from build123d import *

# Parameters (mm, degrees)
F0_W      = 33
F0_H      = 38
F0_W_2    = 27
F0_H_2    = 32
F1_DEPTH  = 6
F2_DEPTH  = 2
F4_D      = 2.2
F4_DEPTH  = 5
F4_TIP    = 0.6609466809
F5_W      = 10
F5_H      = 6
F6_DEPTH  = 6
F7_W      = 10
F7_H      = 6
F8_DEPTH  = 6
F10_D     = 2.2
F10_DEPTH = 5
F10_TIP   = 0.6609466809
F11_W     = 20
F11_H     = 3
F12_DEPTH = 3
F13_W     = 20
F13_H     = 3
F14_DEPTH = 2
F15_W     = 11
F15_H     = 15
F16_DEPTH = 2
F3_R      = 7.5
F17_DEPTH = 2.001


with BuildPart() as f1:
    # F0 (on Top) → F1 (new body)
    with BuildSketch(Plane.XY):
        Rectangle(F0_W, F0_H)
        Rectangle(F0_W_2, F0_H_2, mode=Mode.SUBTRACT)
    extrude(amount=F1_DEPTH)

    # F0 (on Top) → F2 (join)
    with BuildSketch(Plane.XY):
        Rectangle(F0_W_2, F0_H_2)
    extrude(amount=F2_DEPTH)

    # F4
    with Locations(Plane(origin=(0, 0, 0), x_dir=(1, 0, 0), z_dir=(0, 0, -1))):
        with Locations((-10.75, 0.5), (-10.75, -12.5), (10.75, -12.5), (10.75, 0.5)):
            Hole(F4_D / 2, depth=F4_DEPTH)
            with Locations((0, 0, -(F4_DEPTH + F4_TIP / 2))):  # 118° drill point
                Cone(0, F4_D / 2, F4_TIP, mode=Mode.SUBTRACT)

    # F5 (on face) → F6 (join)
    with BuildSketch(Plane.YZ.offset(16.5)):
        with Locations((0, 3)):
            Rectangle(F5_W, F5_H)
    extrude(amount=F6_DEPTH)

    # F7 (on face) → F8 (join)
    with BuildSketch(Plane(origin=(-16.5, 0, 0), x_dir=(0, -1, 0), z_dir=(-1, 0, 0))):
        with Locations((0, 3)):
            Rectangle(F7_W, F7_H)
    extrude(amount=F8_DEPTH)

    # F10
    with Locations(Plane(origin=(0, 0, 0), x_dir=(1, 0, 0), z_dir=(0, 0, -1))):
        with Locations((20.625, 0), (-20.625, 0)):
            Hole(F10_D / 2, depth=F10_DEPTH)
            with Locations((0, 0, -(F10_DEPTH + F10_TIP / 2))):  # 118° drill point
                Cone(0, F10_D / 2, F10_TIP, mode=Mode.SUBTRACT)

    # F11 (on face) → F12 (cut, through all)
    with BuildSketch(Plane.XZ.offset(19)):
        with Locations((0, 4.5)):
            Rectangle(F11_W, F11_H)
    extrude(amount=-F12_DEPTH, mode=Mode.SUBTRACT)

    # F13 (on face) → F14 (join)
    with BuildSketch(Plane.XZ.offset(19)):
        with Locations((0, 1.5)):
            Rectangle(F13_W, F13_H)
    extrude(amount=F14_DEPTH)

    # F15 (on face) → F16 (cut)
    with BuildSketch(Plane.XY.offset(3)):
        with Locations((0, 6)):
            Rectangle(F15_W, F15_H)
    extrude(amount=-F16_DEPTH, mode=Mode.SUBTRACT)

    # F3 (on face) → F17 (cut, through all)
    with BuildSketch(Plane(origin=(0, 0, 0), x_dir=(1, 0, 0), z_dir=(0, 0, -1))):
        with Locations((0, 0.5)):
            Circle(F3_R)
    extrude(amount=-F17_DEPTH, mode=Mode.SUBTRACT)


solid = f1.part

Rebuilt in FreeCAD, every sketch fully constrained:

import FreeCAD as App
import Part
import Sketcher
Q = App.Units.Quantity


def add_polygon(sketch, points):
    """Adds a closed chain of lines whose ends are joined by coincident constraints."""
    first, n = sketch.GeometryCount, len(points)
    for a, b in zip(points, points[1:] + points[:1]):
        sketch.addGeometry(Part.LineSegment(App.Vector(*a, 0), App.Vector(*b, 0)), False)
    for i in range(n):
        sketch.addConstraint(Sketcher.Constraint("Coincident", first + i, 2, first + (i + 1) % n, 1))

doc = App.newDocument("Part")
body = doc.addObject("PartDesign::Body", "Body")

# Sketch on XY plane
sketch1 = body.newObject("Sketcher::SketchObject", "Sketch")
sketch1.AttachmentSupport = (doc.getObject("XY_Plane"), [""])
sketch1.MapMode = "FlatFace"
add_polygon(sketch1, [(-16.5, 19), (-16.5, -19), (16.5, -19), (16.5, 19)])  # lines 0-3
add_polygon(sketch1, [(13.5, -16), (-13.5, -16), (-13.5, 16), (13.5, 16)])  # lines 4-7
sketch1.addConstraint(Sketcher.Constraint("Vertical", 0))
sketch1.addConstraint(Sketcher.Constraint("Horizontal", 1))
sketch1.addConstraint(Sketcher.Constraint("Vertical", 2))
sketch1.addConstraint(Sketcher.Constraint("Horizontal", 3))
sketch1.addConstraint(Sketcher.Constraint("Horizontal", 4))
sketch1.addConstraint(Sketcher.Constraint("Vertical", 5))
sketch1.addConstraint(Sketcher.Constraint("Horizontal", 6))
sketch1.addConstraint(Sketcher.Constraint("Vertical", 7))
sketch1.addConstraint(Sketcher.Constraint("Symmetric", 0, 2, 2, 2, -1, 1))
sketch1.addConstraint(Sketcher.Constraint("Symmetric", 4, 2, 6, 2, -1, 1))
sketch1.addConstraint(Sketcher.Constraint("DistanceX", 1, 1, 1, 2, Q("33 mm")))
sketch1.addConstraint(Sketcher.Constraint("DistanceX", 4, 2, 4, 1, Q("27 mm")))
sketch1.addConstraint(Sketcher.Constraint("DistanceY", 0, 2, 0, 1, Q("38 mm")))
sketch1.addConstraint(Sketcher.Constraint("DistanceY", 5, 1, 5, 2, Q("32 mm")))
pad1 = body.newObject("PartDesign::Pad", "Pad")
pad1.Profile = sketch1
pad1.Length = 6

# Sketch on XY plane
sketch2 = body.newObject("Sketcher::SketchObject", "Sketch001")
sketch2.AttachmentSupport = (doc.getObject("XY_Plane"), [""])
sketch2.MapMode = "FlatFace"
add_polygon(sketch2, [(-13.5, 16), (-13.5, -16), (13.5, -16), (13.5, 16)])  # lines 0-3
sketch2.addConstraint(Sketcher.Constraint("Vertical", 0))
sketch2.addConstraint(Sketcher.Constraint("Horizontal", 1))
sketch2.addConstraint(Sketcher.Constraint("Vertical", 2))
sketch2.addConstraint(Sketcher.Constraint("Horizontal", 3))
sketch2.addConstraint(Sketcher.Constraint("Symmetric", 0, 2, 2, 2, -1, 1))
sketch2.addConstraint(Sketcher.Constraint("DistanceX", 1, 1, 1, 2, Q("27 mm")))
sketch2.addConstraint(Sketcher.Constraint("DistanceY", 0, 2, 0, 1, Q("32 mm")))
pad2 = body.newObject("PartDesign::Pad", "Pad001")
pad2.Profile = sketch2
pad2.Length = 2

# Sketch on XY plane
sketch3 = body.newObject("Sketcher::SketchObject", "Sketch002")
sketch3.AttachmentSupport = (doc.getObject("XY_Plane"), [""])
sketch3.MapMode = "FlatFace"
sketch3.addGeometry(Part.Circle(App.Vector(-10.75, -0.5, 0), App.Vector(0, 0, 1), 1.1), False)
sketch3.addGeometry(Part.Circle(App.Vector(-10.75, 12.5, 0), App.Vector(0, 0, 1), 1.1), False)
sketch3.addGeometry(Part.Circle(App.Vector(10.75, 12.5, 0), App.Vector(0, 0, 1), 1.1), False)
sketch3.addGeometry(Part.Circle(App.Vector(10.75, -0.5, 0), App.Vector(0, 0, 1), 1.1), False)
sketch3.addConstraint(Sketcher.Constraint("Equal", 0, 1))
sketch3.addConstraint(Sketcher.Constraint("Equal", 1, 2))
sketch3.addConstraint(Sketcher.Constraint("Equal", 2, 3))
sketch3.addConstraint(Sketcher.Constraint("Symmetric", 1, 3, 2, 3, -2))
sketch3.addConstraint(Sketcher.Constraint("Symmetric", 0, 3, 3, 3, -2))
sketch3.addConstraint(Sketcher.Constraint("Vertical", 0, 3, 1, 3))
sketch3.addConstraint(Sketcher.Constraint("Diameter", 0, Q("2.2 mm")))
sketch3.addConstraint(Sketcher.Constraint("DistanceY", 0, 3, 1, 3, Q("13 mm")))
sketch3.addConstraint(Sketcher.Constraint("DistanceY", 0, 3, -1, 1, Q("0.5 mm")))
sketch3.addConstraint(Sketcher.Constraint("DistanceX", 1, 3, 2, 3, Q("21.5 mm")))
doc.recompute()
hole = body.newObject("PartDesign::Hole", "Hole")
hole.Profile = sketch3
hole.ThreadType = "None"
hole.Diameter = 2.2
hole.DepthType = "Dimension"
hole.Depth = 5
hole.DrillPoint = "Angled"
hole.DrillPointAngle = 118
hole.Reversed = True

# Sketch on YZ plane
sketch4 = body.newObject("Sketcher::SketchObject", "Sketch003")
sketch4.AttachmentSupport = (doc.getObject("YZ_Plane"), [""])
sketch4.MapMode = "FlatFace"
sketch4.AttachmentOffset = App.Placement(App.Vector(0, 0, 16.5), App.Rotation())
add_polygon(sketch4, [(-5, 6), (-5, 0), (5, 0), (5, 6)])  # lines 0-3
sketch4.addConstraint(Sketcher.Constraint("Vertical", 0))
sketch4.addConstraint(Sketcher.Constraint("Horizontal", 1))
sketch4.addConstraint(Sketcher.Constraint("Vertical", 2))
sketch4.addConstraint(Sketcher.Constraint("Horizontal", 3))
sketch4.addConstraint(Sketcher.Constraint("Symmetric", 0, 2, 1, 2, -1, 1))
sketch4.addConstraint(Sketcher.Constraint("DistanceX", 1, 1, 1, 2, Q("10 mm")))
sketch4.addConstraint(Sketcher.Constraint("DistanceY", 0, 2, 0, 1, Q("6 mm")))
pad3 = body.newObject("PartDesign::Pad", "Pad002")
pad3.Profile = sketch4
pad3.Length = 6

# Sketch on YZ plane
sketch5 = body.newObject("Sketcher::SketchObject", "Sketch004")
sketch5.AttachmentSupport = (doc.getObject("YZ_Plane"), [""])
sketch5.MapMode = "FlatFace"
sketch5.AttachmentOffset = App.Placement(App.Vector(0, 0, -16.5), App.Rotation())
add_polygon(sketch5, [(5, 6), (5, 0), (-5, 0), (-5, 6)])  # lines 0-3
sketch5.addConstraint(Sketcher.Constraint("Vertical", 0))
sketch5.addConstraint(Sketcher.Constraint("Horizontal", 1))
sketch5.addConstraint(Sketcher.Constraint("Vertical", 2))
sketch5.addConstraint(Sketcher.Constraint("Horizontal", 3))
sketch5.addConstraint(Sketcher.Constraint("Symmetric", 0, 2, 1, 2, -1, 1))
sketch5.addConstraint(Sketcher.Constraint("DistanceX", 1, 2, 1, 1, Q("10 mm")))
sketch5.addConstraint(Sketcher.Constraint("DistanceY", 0, 2, 0, 1, Q("6 mm")))
pad4 = body.newObject("PartDesign::Pad", "Pad003")
pad4.Profile = sketch5
pad4.Length = 6
pad4.Reversed = True

# Sketch on XY plane
sketch6 = body.newObject("Sketcher::SketchObject", "Sketch005")
sketch6.AttachmentSupport = (doc.getObject("XY_Plane"), [""])
sketch6.MapMode = "FlatFace"
sketch6.addGeometry(Part.Circle(App.Vector(20.625, 0, 0), App.Vector(0, 0, 1), 1.1), False)
sketch6.addGeometry(Part.Circle(App.Vector(-20.625, 0, 0), App.Vector(0, 0, 1), 1.1), False)
sketch6.addConstraint(Sketcher.Constraint("Equal", 0, 1))
sketch6.addConstraint(Sketcher.Constraint("Symmetric", 0, 3, 1, 3, -1, 1))
sketch6.addConstraint(Sketcher.Constraint("PointOnObject", 0, 3, -1))
sketch6.addConstraint(Sketcher.Constraint("Diameter", 0, Q("2.2 mm")))
sketch6.addConstraint(Sketcher.Constraint("DistanceX", 1, 3, 0, 3, Q("41.25 mm")))
doc.recompute()
hole2 = body.newObject("PartDesign::Hole", "Hole001")
hole2.Profile = sketch6
hole2.ThreadType = "None"
hole2.Diameter = 2.2
hole2.DepthType = "Dimension"
hole2.Depth = 5
hole2.DrillPoint = "Angled"
hole2.DrillPointAngle = 118
hole2.Reversed = True

# Sketch on XZ plane
sketch7 = body.newObject("Sketcher::SketchObject", "Sketch006")
sketch7.AttachmentSupport = (doc.getObject("XZ_Plane"), [""])
sketch7.MapMode = "FlatFace"
sketch7.AttachmentOffset = App.Placement(App.Vector(0, 0, 19), App.Rotation())
add_polygon(sketch7, [(-10, 6), (-10, 3), (10, 3), (10, 6)])  # lines 0-3
sketch7.addConstraint(Sketcher.Constraint("Vertical", 0))
sketch7.addConstraint(Sketcher.Constraint("Horizontal", 1))
sketch7.addConstraint(Sketcher.Constraint("Vertical", 2))
sketch7.addConstraint(Sketcher.Constraint("Horizontal", 3))
sketch7.addConstraint(Sketcher.Constraint("DistanceX", 1, 1, 1, 2, Q("20 mm")))
sketch7.addConstraint(Sketcher.Constraint("DistanceY", 0, 2, 0, 1, Q("3 mm")))
sketch7.addConstraint(Sketcher.Constraint("DistanceX", 0, 2, -1, 1, Q("10 mm")))
sketch7.addConstraint(Sketcher.Constraint("DistanceY", -1, 1, 0, 2, Q("3 mm")))
pocket1 = body.newObject("PartDesign::Pocket", "Pocket")
pocket1.Profile = sketch7
pocket1.Length = 3

# Sketch on XZ plane
sketch8 = body.newObject("Sketcher::SketchObject", "Sketch007")
sketch8.AttachmentSupport = (doc.getObject("XZ_Plane"), [""])
sketch8.MapMode = "FlatFace"
sketch8.AttachmentOffset = App.Placement(App.Vector(0, 0, 19), App.Rotation())
add_polygon(sketch8, [(-10, 3), (-10, 0), (10, 0), (10, 3)])  # lines 0-3
sketch8.addConstraint(Sketcher.Constraint("Vertical", 0))
sketch8.addConstraint(Sketcher.Constraint("Horizontal", 1))
sketch8.addConstraint(Sketcher.Constraint("Vertical", 2))
sketch8.addConstraint(Sketcher.Constraint("Horizontal", 3))
sketch8.addConstraint(Sketcher.Constraint("Symmetric", 0, 2, 1, 2, -1, 1))
sketch8.addConstraint(Sketcher.Constraint("DistanceX", 1, 1, 1, 2, Q("20 mm")))
sketch8.addConstraint(Sketcher.Constraint("DistanceY", 0, 2, 0, 1, Q("3 mm")))
pad5 = body.newObject("PartDesign::Pad", "Pad004")
pad5.Profile = sketch8
pad5.Length = 2

# Sketch on XY plane
sketch9 = body.newObject("Sketcher::SketchObject", "Sketch008")
sketch9.AttachmentSupport = (doc.getObject("XY_Plane"), [""])
sketch9.MapMode = "FlatFace"
sketch9.AttachmentOffset = App.Placement(App.Vector(0, 0, 3), App.Rotation())
add_polygon(sketch9, [(-5.5, 13.5), (-5.5, -1.5), (5.5, -1.5), (5.5, 13.5)])  # lines 0-3
sketch9.addConstraint(Sketcher.Constraint("Vertical", 0))
sketch9.addConstraint(Sketcher.Constraint("Horizontal", 1))
sketch9.addConstraint(Sketcher.Constraint("Vertical", 2))
sketch9.addConstraint(Sketcher.Constraint("Horizontal", 3))
sketch9.addConstraint(Sketcher.Constraint("DistanceX", 1, 1, 1, 2, Q("11 mm")))
sketch9.addConstraint(Sketcher.Constraint("DistanceY", 0, 2, 0, 1, Q("15 mm")))
sketch9.addConstraint(Sketcher.Constraint("DistanceX", 0, 2, -1, 1, Q("5.5 mm")))
sketch9.addConstraint(Sketcher.Constraint("DistanceY", 0, 2, -1, 1, Q("1.5 mm")))
pocket2 = body.newObject("PartDesign::Pocket", "Pocket001")
pocket2.Profile = sketch9
pocket2.Length = 2

# Sketch on XY plane
sketch10 = body.newObject("Sketcher::SketchObject", "Sketch009")
sketch10.AttachmentSupport = (doc.getObject("XY_Plane"), [""])
sketch10.MapMode = "FlatFace"
sketch10.addGeometry(Part.Circle(App.Vector(0, -0.5, 0), App.Vector(0, 0, 1), 7.5), False)
sketch10.addConstraint(Sketcher.Constraint("PointOnObject", 0, 3, -2))
sketch10.addConstraint(Sketcher.Constraint("Diameter", 0, Q("15 mm")))
sketch10.addConstraint(Sketcher.Constraint("DistanceY", 0, 3, -1, 1, Q("0.5 mm")))
pocket3 = body.newObject("PartDesign::Pocket", "Pocket002")
pocket3.Profile = sketch10
pocket3.Type = "ThroughAll"
pocket3.Reversed = True

doc.recompute()
